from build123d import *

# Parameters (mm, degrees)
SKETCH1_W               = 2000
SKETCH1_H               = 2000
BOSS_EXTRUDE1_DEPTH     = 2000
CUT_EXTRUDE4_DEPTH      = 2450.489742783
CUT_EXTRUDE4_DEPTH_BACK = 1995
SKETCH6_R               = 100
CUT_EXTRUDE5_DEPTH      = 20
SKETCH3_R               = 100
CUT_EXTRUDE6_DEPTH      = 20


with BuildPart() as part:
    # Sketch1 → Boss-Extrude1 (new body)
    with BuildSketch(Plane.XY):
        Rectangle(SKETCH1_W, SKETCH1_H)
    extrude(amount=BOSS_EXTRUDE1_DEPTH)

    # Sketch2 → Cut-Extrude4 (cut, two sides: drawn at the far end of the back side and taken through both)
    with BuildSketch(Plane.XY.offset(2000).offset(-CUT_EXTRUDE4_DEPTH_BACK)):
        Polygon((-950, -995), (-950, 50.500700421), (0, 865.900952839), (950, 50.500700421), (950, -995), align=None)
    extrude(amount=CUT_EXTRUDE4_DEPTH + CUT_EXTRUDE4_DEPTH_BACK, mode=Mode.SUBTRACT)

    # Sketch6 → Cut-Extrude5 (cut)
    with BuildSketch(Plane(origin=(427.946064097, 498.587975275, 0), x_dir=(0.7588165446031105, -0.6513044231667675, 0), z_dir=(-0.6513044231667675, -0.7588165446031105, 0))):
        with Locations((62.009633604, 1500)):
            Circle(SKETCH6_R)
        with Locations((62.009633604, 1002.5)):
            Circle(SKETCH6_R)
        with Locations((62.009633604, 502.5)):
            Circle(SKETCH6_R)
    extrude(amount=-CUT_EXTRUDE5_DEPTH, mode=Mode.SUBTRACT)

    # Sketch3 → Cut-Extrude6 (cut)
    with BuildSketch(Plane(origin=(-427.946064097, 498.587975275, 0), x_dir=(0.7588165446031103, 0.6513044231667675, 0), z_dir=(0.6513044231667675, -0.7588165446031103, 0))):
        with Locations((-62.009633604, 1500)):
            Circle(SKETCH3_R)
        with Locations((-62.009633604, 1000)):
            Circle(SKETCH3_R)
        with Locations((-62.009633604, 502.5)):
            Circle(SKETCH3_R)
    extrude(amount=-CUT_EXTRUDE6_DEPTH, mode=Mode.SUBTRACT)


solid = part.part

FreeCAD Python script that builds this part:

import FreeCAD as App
import Part
import Sketcher

V = App.Vector

doc = App.newDocument("Part")
body = doc.addObject("PartDesign::Body", "Body")

# Sketch on XY plane
sketch1 = body.newObject("Sketcher::SketchObject", "Sketch")
sketch1.AttachmentSupport = (doc.getObject("XY_Plane"), [""])
sketch1.MapMode = "FlatFace"
sketch1.addGeometry([
    Part.LineSegment(V(-1000, 1000, 0), V(-1000, -1000, 0)),
    Part.LineSegment(V(-1000, -1000, 0), V(1000, -1000, 0)),
    Part.LineSegment(V(1000, -1000, 0), V(1000, 1000, 0)),
    Part.LineSegment(V(1000, 1000, 0), V(-1000, 1000, 0)),
], False)
sketch1.addConstraint([
    Sketcher.Constraint("Coincident", 0, 2, 1, 1),
    Sketcher.Constraint("Coincident", 1, 2, 2, 1),
    Sketcher.Constraint("Coincident", 2, 2, 3, 1),
    Sketcher.Constraint("Coincident", 3, 2, 0, 1),
    Sketcher.Constraint("Vertical", 0),
    Sketcher.Constraint("Horizontal", 1),
    Sketcher.Constraint("Vertical", 2),
    Sketcher.Constraint("Horizontal", 3),
    Sketcher.Constraint("Symmetric", 0, 2, 2, 2, -1, 1),
    Sketcher.Constraint("Equal", 3, 0),
    Sketcher.Constraint("DistanceX", 1, 1, 1, 2, 2000.0),
])
pad1 = body.newObject("PartDesign::Pad", "Pad")
pad1.Profile = sketch1
pad1.Length = 2000

# Sketch on XY plane
sketch2 = body.newObject("Sketcher::SketchObject", "Sketch001")
sketch2.AttachmentSupport = (doc.getObject("XY_Plane"), [""])
sketch2.MapMode = "FlatFace"
sketch2.AttachmentOffset = App.Placement(V(0, 0, 2000), App.Rotation())
sketch2.addGeometry([
    Part.LineSegment(V(-950, 51, 0), V(-950, -995, 0)),  # 0
    Part.LineSegment(V(-950, -995, 0), V(950, -995, 0)),  # 1
    Part.LineSegment(V(950, -995, 0), V(950, 51, 0)),  # 2
    Part.LineSegment(V(950, 51, 0), V(0, 866, 0)),  # 3
    Part.LineSegment(V(0, 866, 0), V(-950, 51, 0)),  # 4
], False)
sketch2.addConstraint([
    Sketcher.Constraint("Coincident", 0, 2, 1, 1),
    Sketcher.Constraint("Coincident", 1, 2, 2, 1),
    Sketcher.Constraint("Coincident", 2, 2, 3, 1),
    Sketcher.Constraint("Coincident", 3, 2, 4, 1),
    Sketcher.Constraint("Coincident", 4, 2, 0, 1),
    Sketcher.Constraint("Vertical", 0),
    Sketcher.Constraint("Horizontal", 1),
    Sketcher.Constraint("Vertical", 2),
    Sketcher.Constraint("Symmetric", 2, 2, 4, 2, -2),
    Sketcher.Constraint("PointOnObject", 3, 2, -2),
    Sketcher.Constraint("DistanceX", 1, 1, 1, 2, 1900.0),
    Sketcher.Constraint("DistanceY", 0, 2, -1, 1, 995.0),
    Sketcher.Constraint("DistanceY", 0, 2, 0, 1, 1045.5007),
    Sketcher.Constraint("Distance", 3, 1251.949508),
])
pocket1 = body.newObject("PartDesign::Pocket", "Pocket")
pocket1.Profile = sketch2
pocket1.Type = "TwoLengths"
pocket1.Length = 2450.489743
pocket1.Length2 = 1995
pocket1.Reversed = True

# Sketch on an angled plane
sketch3 = body.newObject("Sketcher::SketchObject", "Sketch002")
sketch3.Placement = App.Placement(V(427.946064, 498.587975, 0), App.Rotation(V(0.758816545, -0.651304423, 0), V(0, 0, 1), V(-0.651304423, -0.758816545, 0), "ZXY"))
sketch3.addGeometry([
    Part.Circle(V(62, 1500, 0), V(0, 0, 1), 100),
    Part.Circle(V(62, 1003, 0), V(0, 0, 1), 100),
    Part.Circle(V(62, 503, 0), V(0, 0, 1), 100),
], False)
sketch3.addConstraint([
    Sketcher.Constraint("Equal", 0, 1),
    Sketcher.Constraint("Equal", 1, 2),
    Sketcher.Constraint("Vertical", 0, 3, 1, 3),
    Sketcher.Constraint("Vertical", 1, 3, 2, 3),
    Sketcher.Constraint("Diameter", 0, 200.0),
    Sketcher.Constraint("DistanceY", -1, 1, 0, 3, 1500.000001),
    Sketcher.Constraint("DistanceY", 2, 3, 1, 3, 500.0),
    Sketcher.Constraint("DistanceY", -1, 1, 1, 3, 1002.500001),
    Sketcher.Constraint("DistanceX", -1, 1, 0, 3, 62.009634),
])
pocket2 = body.newObject("PartDesign::Pocket", "Pocket001")
pocket2.Profile = sketch3
pocket2.Length = 20

# Sketch on an angled plane
sketch4 = body.newObject("Sketcher::SketchObject", "Sketch003")
sketch4.Placement = App.Placement(V(-427.946064, 498.587975, 0), App.Rotation(V(0.758816545, 0.651304423, 0), V(0, 0, 1), V(0.651304423, -0.758816545, 0), "ZXY"))
sketch4.addGeometry([
    Part.Circle(V(-62, 1500, 0), V(0, 0, 1), 100),
    Part.Circle(V(-62, 1000, 0), V(0, 0, 1), 100),
    Part.Circle(V(-62, 503, 0), V(0, 0, 1), 100),
], False)
sketch4.addConstraint([
    Sketcher.Constraint("Equal", 0, 1),
    Sketcher.Constraint("Equal", 1, 2),
    Sketcher.Constraint("Vertical", 0, 3, 1, 3),
    Sketcher.Constraint("Vertical", 1, 3, 2, 3),
    Sketcher.Constraint("Diameter", 0, 200.0),
    Sketcher.Constraint("DistanceY", -1, 1, 0, 3, 1500.000001),
    Sketcher.Constraint("DistanceY", -1, 1, 1, 3, 1000.000001),
    Sketcher.Constraint("DistanceY", -1, 1, 2, 3, 502.5),
    Sketcher.Constraint("DistanceX", 0, 3, -1, 1, 62.009634),
])
pocket3 = body.newObject("PartDesign::Pocket", "Pocket002")
pocket3.Profile = sketch4
pocket3.Length = 20

doc.recompute()
